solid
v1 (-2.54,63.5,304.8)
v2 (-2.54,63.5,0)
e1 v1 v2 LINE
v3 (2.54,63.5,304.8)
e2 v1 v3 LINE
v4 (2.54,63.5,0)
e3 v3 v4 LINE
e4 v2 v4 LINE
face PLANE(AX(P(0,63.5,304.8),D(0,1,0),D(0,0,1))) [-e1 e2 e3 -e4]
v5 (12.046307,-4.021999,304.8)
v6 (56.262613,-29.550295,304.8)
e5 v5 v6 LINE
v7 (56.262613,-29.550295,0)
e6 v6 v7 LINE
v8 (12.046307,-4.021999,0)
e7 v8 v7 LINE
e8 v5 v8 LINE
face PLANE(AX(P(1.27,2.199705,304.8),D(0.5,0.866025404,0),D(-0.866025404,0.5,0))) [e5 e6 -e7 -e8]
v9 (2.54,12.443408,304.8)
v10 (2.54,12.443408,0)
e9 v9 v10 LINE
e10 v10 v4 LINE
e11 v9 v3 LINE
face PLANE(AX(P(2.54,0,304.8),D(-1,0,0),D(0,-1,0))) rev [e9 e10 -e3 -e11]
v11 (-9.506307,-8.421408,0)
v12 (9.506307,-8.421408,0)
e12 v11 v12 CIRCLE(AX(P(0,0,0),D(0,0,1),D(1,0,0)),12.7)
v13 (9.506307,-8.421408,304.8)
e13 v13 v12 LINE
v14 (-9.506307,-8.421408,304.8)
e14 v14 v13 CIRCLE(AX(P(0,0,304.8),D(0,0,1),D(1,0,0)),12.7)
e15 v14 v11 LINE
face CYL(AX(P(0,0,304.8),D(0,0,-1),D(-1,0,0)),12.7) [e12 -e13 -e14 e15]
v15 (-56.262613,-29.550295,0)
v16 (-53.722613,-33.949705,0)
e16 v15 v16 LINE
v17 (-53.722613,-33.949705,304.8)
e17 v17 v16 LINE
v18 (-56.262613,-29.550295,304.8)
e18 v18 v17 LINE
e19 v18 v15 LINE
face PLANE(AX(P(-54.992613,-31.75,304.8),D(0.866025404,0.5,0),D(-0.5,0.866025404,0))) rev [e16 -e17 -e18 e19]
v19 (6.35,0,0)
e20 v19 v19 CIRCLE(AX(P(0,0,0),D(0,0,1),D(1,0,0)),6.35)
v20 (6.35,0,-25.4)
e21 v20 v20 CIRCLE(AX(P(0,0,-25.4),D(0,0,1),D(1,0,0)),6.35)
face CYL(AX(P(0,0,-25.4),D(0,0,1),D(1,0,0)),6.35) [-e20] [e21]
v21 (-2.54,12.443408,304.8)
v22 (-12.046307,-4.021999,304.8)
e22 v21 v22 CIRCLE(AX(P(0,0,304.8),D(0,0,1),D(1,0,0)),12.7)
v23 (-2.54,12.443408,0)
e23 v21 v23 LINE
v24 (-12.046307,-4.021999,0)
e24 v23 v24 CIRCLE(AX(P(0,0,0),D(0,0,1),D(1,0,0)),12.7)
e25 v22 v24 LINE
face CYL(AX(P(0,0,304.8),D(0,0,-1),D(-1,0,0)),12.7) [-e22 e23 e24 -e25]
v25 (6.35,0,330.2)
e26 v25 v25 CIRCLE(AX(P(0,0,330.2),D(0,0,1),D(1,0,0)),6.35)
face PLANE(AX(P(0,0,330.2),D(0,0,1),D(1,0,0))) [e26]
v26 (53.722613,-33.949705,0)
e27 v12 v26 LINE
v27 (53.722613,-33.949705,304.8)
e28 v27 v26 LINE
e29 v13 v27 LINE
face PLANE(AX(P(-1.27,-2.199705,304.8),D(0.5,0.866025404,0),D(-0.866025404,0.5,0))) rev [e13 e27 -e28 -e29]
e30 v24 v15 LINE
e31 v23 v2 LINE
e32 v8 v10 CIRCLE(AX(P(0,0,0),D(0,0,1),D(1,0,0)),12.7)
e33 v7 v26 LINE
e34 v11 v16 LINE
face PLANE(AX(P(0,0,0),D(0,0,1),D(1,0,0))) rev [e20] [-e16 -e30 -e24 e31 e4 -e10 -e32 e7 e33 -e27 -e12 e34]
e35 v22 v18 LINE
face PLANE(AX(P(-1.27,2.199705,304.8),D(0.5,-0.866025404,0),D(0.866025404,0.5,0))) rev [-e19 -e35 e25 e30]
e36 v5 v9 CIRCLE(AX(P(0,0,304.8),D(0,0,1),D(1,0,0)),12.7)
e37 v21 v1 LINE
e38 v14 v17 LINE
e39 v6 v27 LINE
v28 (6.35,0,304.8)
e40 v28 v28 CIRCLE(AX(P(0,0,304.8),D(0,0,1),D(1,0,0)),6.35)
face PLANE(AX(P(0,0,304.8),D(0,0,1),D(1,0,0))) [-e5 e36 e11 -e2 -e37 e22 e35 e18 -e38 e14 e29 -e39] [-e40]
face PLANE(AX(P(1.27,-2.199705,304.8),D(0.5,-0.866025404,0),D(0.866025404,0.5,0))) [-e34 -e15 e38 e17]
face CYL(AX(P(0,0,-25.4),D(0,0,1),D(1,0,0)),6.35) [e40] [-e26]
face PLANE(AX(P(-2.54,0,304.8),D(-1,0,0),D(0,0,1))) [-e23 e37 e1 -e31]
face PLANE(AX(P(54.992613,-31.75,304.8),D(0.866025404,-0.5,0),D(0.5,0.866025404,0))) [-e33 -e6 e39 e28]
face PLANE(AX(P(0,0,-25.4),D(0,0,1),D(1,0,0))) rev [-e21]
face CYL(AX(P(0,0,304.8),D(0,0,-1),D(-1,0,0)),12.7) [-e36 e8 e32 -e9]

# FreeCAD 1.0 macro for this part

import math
import FreeCAD as App
import Part
import Sketcher
from FreeCAD import Vector
Q = App.Units.Quantity

doc = App.newDocument("Part")
body = doc.addObject("PartDesign::Body", "Body")

# Sketch on XY plane
sketch1 = body.newObject("Sketcher::SketchObject", "Sketch")
sketch1.AttachmentSupport = (doc.getObject("XY_Plane"), [""])
sketch1.MapMode = "FlatFace"
sketch1.addGeometry(Part.ArcOfCircle(Part.Circle(Vector(0, 0, 0), Vector(0, 0, 1), 12.7), math.radians(102), math.radians(198)), False)
sketch1.addGeometry(Part.LineSegment(Vector(-12, -4, 0), Vector(-56.3, -29.6, 0)), False)
sketch1.addGeometry(Part.LineSegment(Vector(-56.3, -29.6, 0), Vector(-53.7, -33.9, 0)), False)
sketch1.addGeometry(Part.LineSegment(Vector(-53.7, -33.9, 0), Vector(-9.5, -8.4, 0)), False)
sketch1.addGeometry(Part.ArcOfCircle(Part.Circle(Vector(0, 0, 0), Vector(0, 0, 1), 12.7), math.radians(-138), math.radians(-42)), False)
sketch1.addGeometry(Part.LineSegment(Vector(9.5, -8.4, 0), Vector(53.7, -33.9, 0)), False)
sketch1.addGeometry(Part.LineSegment(Vector(53.7, -33.9, 0), Vector(56.3, -29.6, 0)), False)
sketch1.addGeometry(Part.LineSegment(Vector(56.3, -29.6, 0), Vector(12, -4, 0)), False)
sketch1.addGeometry(Part.ArcOfCircle(Part.Circle(Vector(0, 0, 0), Vector(0, 0, 1), 12.7), math.radians(-18.46), math.radians(0)), False)
sketch1.addGeometry(Part.ArcOfCircle(Part.Circle(Vector(0, 0, 0), Vector(0, 0, 1), 12.7), math.radians(0), math.radians(78)), False)
sketch1.addGeometry(Part.LineSegment(Vector(2.5, 12.4, 0), Vector(2.5, 63.5, 0)), False)
sketch1.addGeometry(Part.LineSegment(Vector(2.5, 63.5, 0), Vector(-2.5, 63.5, 0)), False)
sketch1.addGeometry(Part.LineSegment(Vector(-2.5, 63.5, 0), Vector(-2.5, 12.4, 0)), False)
sketch1.addConstraint(Sketcher.Constraint("Coincident", 0, 2, 1, 1))
sketch1.addConstraint(Sketcher.Constraint("Coincident", 1, 2, 2, 1))
sketch1.addConstraint(Sketcher.Constraint("Coincident", 2, 2, 3, 1))
sketch1.addConstraint(Sketcher.Constraint("Coincident", 3, 2, 4, 1))
sketch1.addConstraint(Sketcher.Constraint("Coincident", 4, 2, 5, 1))
sketch1.addConstraint(Sketcher.Constraint("Coincident", 5, 2, 6, 1))
sketch1.addConstraint(Sketcher.Constraint("Coincident", 6, 2, 7, 1))
sketch1.addConstraint(Sketcher.Constraint("Coincident", 7, 2, 8, 1))
sketch1.addConstraint(Sketcher.Constraint("Tangent", 8, 2, 9, 1))
sketch1.addConstraint(Sketcher.Constraint("Coincident", 9, 2, 10, 1))
sketch1.addConstraint(Sketcher.Constraint("Coincident", 10, 2, 11, 1))
sketch1.addConstraint(Sketcher.Constraint("Coincident", 11, 2, 12, 1))
sketch1.addConstraint(Sketcher.Constraint("Coincident", 12, 2, 0, 1))
sketch1.addConstraint(Sketcher.Constraint("Vertical", 10))
sketch1.addConstraint(Sketcher.Constraint("Horizontal", 11))
sketch1.addConstraint(Sketcher.Constraint("Vertical", 12))
sketch1.addConstraint(Sketcher.Constraint("Coincident", 0, 3, -1, 1))
sketch1.addConstraint(Sketcher.Constraint("Coincident", 4, 3, -1, 1))
sketch1.addConstraint(Sketcher.Constraint("Coincident", 8, 3, -1, 1))
sketch1.addConstraint(Sketcher.Constraint("Equal", 0, 4))
sketch1.addConstraint(Sketcher.Constraint("Equal", 4, 8))
sketch1.addConstraint(Sketcher.Constraint("Equal", 8, 9))
sketch1.addConstraint(Sketcher.Constraint("Symmetric", 2, 2, 5, 2, -2))
sketch1.addConstraint(Sketcher.Constraint("Symmetric", 1, 2, 6, 2, -2))
sketch1.addConstraint(Sketcher.Constraint("PointOnObject", 8, 2, -1))
sketch1.addConstraint(Sketcher.Constraint("Perpendicular", 1, 2))
sketch1.addConstraint(Sketcher.Constraint("Perpendicular", 2, 3))
sketch1.addConstraint(Sketcher.Constraint("Perpendicular", 5, 6))
sketch1.addConstraint(Sketcher.Constraint("Perpendicular", 6, 7))
sketch1.addConstraint(Sketcher.Constraint("Horizontal", 9, 2, 12, 2))
sketch1.addConstraint(Sketcher.Constraint("Equal", 1, 3))
sketch1.addConstraint(Sketcher.Constraint("Radius", 0, Q("0.5 in")))
sketch1.addConstraint(Sketcher.Constraint("DistanceX", 11, 2, 11, 1, Q("0.2 in")))
sketch1.addConstraint(Sketcher.Constraint("Angle", 1, Q("-150 deg")))
sketch1.addConstraint(Sketcher.Constraint("Distance", 2, Q("0.2 in")))
sketch1.addConstraint(Sketcher.Constraint("DistanceY", -1, 1, 10, 2, Q("2.5 in")))
sketch1.addConstraint(Sketcher.Constraint("Distance", 1, Q("51.056592 mm")))
pad1 = body.newObject("PartDesign::Pad", "Pad")
pad1.Profile = sketch1
pad1.Length = Q("12 in")

# Sketch on XY plane
sketch2 = body.newObject("Sketcher::SketchObject", "Sketch001")
sketch2.AttachmentSupport = (doc.getObject("XY_Plane"), [""])
sketch2.MapMode = "FlatFace"
sketch2.AttachmentOffset = App.Placement(Vector(0, 0, 12 * 25.4), App.Rotation())
sketch2.addGeometry(Part.Circle(Vector(0, 0, 0), Vector(0, 0, 1), 6), False)
sketch2.addConstraint(Sketcher.Constraint("Coincident", 0, 3, -1, 1))
sketch2.addConstraint(Sketcher.Constraint("Diameter", 0, Q("0.5 in")))
pad2 = body.newObject("PartDesign::Pad", "Pad001")
pad2.Profile = sketch2
pad2.Type = "TwoLengths"
pad2.Length = Q("1 in")
pad2.Length2 = Q("13 in")

doc.recompute()
